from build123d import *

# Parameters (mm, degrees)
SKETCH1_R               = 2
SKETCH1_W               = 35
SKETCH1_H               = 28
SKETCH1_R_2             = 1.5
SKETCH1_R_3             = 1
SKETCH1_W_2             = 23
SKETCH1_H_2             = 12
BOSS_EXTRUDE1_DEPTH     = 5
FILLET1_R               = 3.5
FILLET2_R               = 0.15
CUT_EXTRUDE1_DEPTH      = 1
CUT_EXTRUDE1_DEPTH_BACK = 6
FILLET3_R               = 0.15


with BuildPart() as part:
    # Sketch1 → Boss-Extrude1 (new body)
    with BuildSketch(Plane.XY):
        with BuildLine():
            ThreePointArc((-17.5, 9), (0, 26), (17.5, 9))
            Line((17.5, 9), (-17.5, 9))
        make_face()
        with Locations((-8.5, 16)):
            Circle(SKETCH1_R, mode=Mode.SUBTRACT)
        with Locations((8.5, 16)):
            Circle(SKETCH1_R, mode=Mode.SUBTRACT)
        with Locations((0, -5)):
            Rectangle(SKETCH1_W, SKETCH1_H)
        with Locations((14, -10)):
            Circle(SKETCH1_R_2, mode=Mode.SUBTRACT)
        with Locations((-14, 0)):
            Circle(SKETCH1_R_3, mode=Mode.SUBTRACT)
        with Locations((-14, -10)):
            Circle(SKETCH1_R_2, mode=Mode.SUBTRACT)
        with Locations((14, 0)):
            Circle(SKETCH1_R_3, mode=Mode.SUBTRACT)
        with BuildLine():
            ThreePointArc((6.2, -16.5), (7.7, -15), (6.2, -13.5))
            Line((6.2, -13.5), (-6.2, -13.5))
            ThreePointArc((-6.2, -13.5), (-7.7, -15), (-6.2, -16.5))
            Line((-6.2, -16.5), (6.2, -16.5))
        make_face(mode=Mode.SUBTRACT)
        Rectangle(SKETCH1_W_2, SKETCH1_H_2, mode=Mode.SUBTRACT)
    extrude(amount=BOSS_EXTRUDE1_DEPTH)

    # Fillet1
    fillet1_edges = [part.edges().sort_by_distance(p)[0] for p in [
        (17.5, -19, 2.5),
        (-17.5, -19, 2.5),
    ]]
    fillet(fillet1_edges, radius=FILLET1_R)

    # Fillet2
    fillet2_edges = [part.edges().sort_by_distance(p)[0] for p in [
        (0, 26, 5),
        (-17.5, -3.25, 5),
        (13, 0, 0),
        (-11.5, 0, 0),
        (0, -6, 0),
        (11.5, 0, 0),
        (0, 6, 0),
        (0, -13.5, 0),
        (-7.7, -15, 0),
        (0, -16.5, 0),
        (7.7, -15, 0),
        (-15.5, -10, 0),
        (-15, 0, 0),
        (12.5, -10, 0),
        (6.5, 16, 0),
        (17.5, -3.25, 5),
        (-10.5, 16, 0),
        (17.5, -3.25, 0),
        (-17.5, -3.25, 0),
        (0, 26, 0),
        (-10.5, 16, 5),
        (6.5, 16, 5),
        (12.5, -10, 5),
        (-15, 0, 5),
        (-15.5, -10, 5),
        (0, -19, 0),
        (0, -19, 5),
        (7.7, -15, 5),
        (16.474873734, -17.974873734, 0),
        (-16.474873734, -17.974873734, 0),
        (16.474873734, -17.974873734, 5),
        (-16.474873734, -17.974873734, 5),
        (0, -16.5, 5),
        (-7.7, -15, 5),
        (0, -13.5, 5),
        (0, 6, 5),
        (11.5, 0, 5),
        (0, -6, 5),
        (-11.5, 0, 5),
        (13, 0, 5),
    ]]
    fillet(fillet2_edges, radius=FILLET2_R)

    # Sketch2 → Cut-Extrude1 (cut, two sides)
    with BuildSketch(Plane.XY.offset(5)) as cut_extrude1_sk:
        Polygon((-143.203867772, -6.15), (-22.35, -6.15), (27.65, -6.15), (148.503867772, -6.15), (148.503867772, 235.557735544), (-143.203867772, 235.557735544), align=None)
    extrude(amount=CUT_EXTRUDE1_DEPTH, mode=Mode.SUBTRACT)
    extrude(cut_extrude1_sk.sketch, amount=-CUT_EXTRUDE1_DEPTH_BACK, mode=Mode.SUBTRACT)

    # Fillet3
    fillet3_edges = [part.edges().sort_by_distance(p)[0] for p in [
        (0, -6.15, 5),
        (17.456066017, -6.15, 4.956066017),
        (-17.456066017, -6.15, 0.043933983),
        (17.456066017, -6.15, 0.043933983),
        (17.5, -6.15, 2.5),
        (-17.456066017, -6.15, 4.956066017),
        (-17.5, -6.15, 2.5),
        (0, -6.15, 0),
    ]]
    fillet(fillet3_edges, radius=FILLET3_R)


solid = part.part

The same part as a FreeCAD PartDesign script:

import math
import FreeCAD as App
import Part
import Sketcher
Q = App.Units.Quantity


def edges_at(feature, points):
    """Names of the edges that pass closest to the given points."""
    edges = feature.Shape.Edges
    near = lambda p: min(range(len(edges)), key=lambda i: edges[i].distToShape(Part.Vertex(*p))[0])
    return sorted({f"Edge{near(p) + 1}" for p in points})

doc = App.newDocument("Part")
body = doc.addObject("PartDesign::Body", "Body")

# Sketch on XY plane
sketch1 = body.newObject("Sketcher::SketchObject", "Sketch")
sketch1.AttachmentSupport = (doc.getObject("XY_Plane"), [""])
sketch1.MapMode = "FlatFace"
sketch1.addGeometry([
    Part.ArcOfCircle(Part.Circle(App.Vector(0, 8.5, 0), App.Vector(0, 0, 1), 17.5), math.radians(2), math.radians(178)),  # 0
    Part.LineSegment(App.Vector(-17.5, 9, 0), App.Vector(-17.5, -19, 0)),  # 1
    Part.LineSegment(App.Vector(-17.5, -19, 0), App.Vector(17.5, -19, 0)),  # 2
    Part.LineSegment(App.Vector(17.5, -19, 0), App.Vector(17.5, 9, 0)),  # 3
    Part.Circle(App.Vector(14, -10, 0), App.Vector(0, 0, 1), 1.5),  # 4
    Part.Circle(App.Vector(14, 0, 0), App.Vector(0, 0, 1), 1),  # 5
    Part.LineSegment(App.Vector(6.2, -16.5, 0), App.Vector(-6.2, -16.5, 0)),  # 6
    Part.ArcOfCircle(Part.Circle(App.Vector(-6.2, -15, 0), App.Vector(0, 0, 1), 1.5), math.radians(90), math.radians(270)),  # 7
    Part.LineSegment(App.Vector(-6.2, -13.5, 0), App.Vector(6.2, -13.5, 0)),  # 8
    Part.ArcOfCircle(Part.Circle(App.Vector(6.2, -15, 0), App.Vector(0, 0, 1), 1.5), math.radians(-90), math.radians(90)),  # 9
    Part.Circle(App.Vector(-14, -10, 0), App.Vector(0, 0, 1), 1.5),  # 10
    Part.LineSegment(App.Vector(-11.5, -6, 0), App.Vector(-11.5, 6, 0)),  # 11
    Part.LineSegment(App.Vector(-11.5, 6, 0), App.Vector(11.5, 6, 0)),  # 12
    Part.LineSegment(App.Vector(11.5, 6, 0), App.Vector(11.5, -6, 0)),  # 13
    Part.LineSegment(App.Vector(11.5, -6, 0), App.Vector(-11.5, -6, 0)),  # 14
    Part.Circle(App.Vector(-14, 0, 0), App.Vector(0, 0, 1), 1),  # 15
    Part.Circle(App.Vector(8.5, 16, 0), App.Vector(0, 0, 1), 2),  # 16
    Part.Circle(App.Vector(-8.5, 16, 0), App.Vector(0, 0, 1), 2),  # 17
], False)
sketch1.addConstraint([
    Sketcher.Constraint("Coincident", 0, 2, 1, 1),
    Sketcher.Constraint("Coincident", 1, 2, 2, 1),
    Sketcher.Constraint("Coincident", 2, 2, 3, 1),
    Sketcher.Constraint("Coincident", 3, 2, 0, 1),
    Sketcher.Constraint("Tangent", 6, 2, 7, 2),
    Sketcher.Constraint("Tangent", 7, 1, 8, 1),
    Sketcher.Constraint("Tangent", 8, 2, 9, 2),
    Sketcher.Constraint("Tangent", 9, 1, 6, 1),
    Sketcher.Constraint("Coincident", 11, 2, 12, 1),
    Sketcher.Constraint("Coincident", 12, 2, 13, 1),
    Sketcher.Constraint("Coincident", 13, 2, 14, 1),
    Sketcher.Constraint("Coincident", 14, 2, 11, 1),
    Sketcher.Constraint("Vertical", 1),
    Sketcher.Constraint("Horizontal", 2),
    Sketcher.Constraint("Vertical", 3),
    Sketcher.Constraint("Horizontal", 6),
    Sketcher.Constraint("Horizontal", 8),
    Sketcher.Constraint("Vertical", 11),
    Sketcher.Constraint("Horizontal", 12),
    Sketcher.Constraint("Vertical", 13),
    Sketcher.Constraint("Horizontal", 14),
    Sketcher.Constraint("Equal", 4, 7),
    Sketcher.Constraint("Equal", 9, 10),
    Sketcher.Constraint("Equal", 5, 15),
    Sketcher.Constraint("Equal", 16, 17),
    Sketcher.Constraint("Symmetric", 5, 3, 15, 3, -1, 1),
    Sketcher.Constraint("Symmetric", 11, 2, 13, 2, -1, 1),
    Sketcher.Constraint("Symmetric", 4, 3, 10, 3, -2),
    Sketcher.Constraint("Symmetric", 16, 3, 17, 3, -2),
    Sketcher.Constraint("Symmetric", 0, 2, 3, 2, -2),
    Sketcher.Constraint("PointOnObject", 5, 3, -1),
    Sketcher.Constraint("Vertical", 4, 3, 5, 3),
    Sketcher.Constraint("Diameter", 4, Q("3 mm")),
    Sketcher.Constraint("Diameter", 5, Q("2 mm")),
    Sketcher.Constraint("Diameter", 16, Q("4 mm")),
    Sketcher.Constraint("DistanceX", 2, 1, 2, 2, Q("35 mm")),
    Sketcher.Constraint("DistanceX", 12, 1, 12, 2, Q("23 mm")),
    Sketcher.Constraint("DistanceY", 1, 2, 1, 1, Q("28 mm")),
    Sketcher.Constraint("DistanceY", 11, 1, 11, 2, Q("12 mm")),
    Sketcher.Constraint("DistanceX", 6, 2, 6, 1, Q("12.4 mm")),
    Sketcher.Constraint("DistanceX", -1, 1, 4, 3, Q("14 mm")),
    Sketcher.Constraint("DistanceY", 4, 3, -1, 1, Q("10 mm")),
    Sketcher.Constraint("DistanceY", 7, 3, -1, 1, Q("15 mm")),
    Sketcher.Constraint("DistanceY", -1, 1, 16, 3, Q("16 mm")),
    Sketcher.Constraint("DistanceY", -1, 1, 0, 2, Q("9 mm")),
    Sketcher.Constraint("DistanceX", 17, 3, 16, 3, Q("17 mm")),
    Sketcher.Constraint("DistanceX", 7, 3, -1, 1, Q("6.2 mm")),
    Sketcher.Constraint("Radius", 0, Q("17.507353 mm")),
])
pad1 = body.newObject("PartDesign::Pad", "Pad")
pad1.Profile = sketch1
pad1.Length = 5
doc.recompute()

fillet = body.newObject("PartDesign::Fillet", "Fillet")
fillet.Base = (pad1, edges_at(pad1, [(17.5, -19, 2.5), (-17.5, -19, 2.5)]))
fillet.Radius = 3.5
doc.recompute()

fillet2 = body.newObject("PartDesign::Fillet", "Fillet001")
fillet2.Base = (fillet, edges_at(fillet, [
    (0, 26, 5),
    (-17.5, -3.25, 5),
    (13, 0, 0),
    (-11.5, 0, 0),
    (0, -6, 0),
    (11.5, 0, 0),
    (0, 6, 0),
    (0, -13.5, 0),
    (-7.7, -15, 0),
    (0, -16.5, 0),
    (7.7, -15, 0),
    (-15.5, -10, 0),
    (-15, 0, 0),
    (12.5, -10, 0),
    (6.5, 16, 0),
    (17.5, -3.25, 5),
    (-10.5, 16, 0),
    (17.5, -3.25, 0),
    (-17.5, -3.25, 0),
    (0, 26, 0),
    (-10.5, 16, 5),
    (6.5, 16, 5),
    (12.5, -10, 5),
    (-15, 0, 5),
    (-15.5, -10, 5),
    (0, -19, 0),
    (0, -19, 5),
    (7.7, -15, 5),
    (16.475, -17.975, 0),
    (-16.475, -17.975, 0),
    (16.475, -17.975, 5),
    (-16.475, -17.975, 5),
    (0, -16.5, 5),
    (-7.7, -15, 5),
    (0, -13.5, 5),
    (0, 6, 5),
    (11.5, 0, 5),
    (0, -6, 5),
    (-11.5, 0, 5),
    (13, 0, 5),
]))
fillet2.Radius = 0.15

# Sketch on XY plane
sketch2 = body.newObject("Sketcher::SketchObject", "Sketch001")
sketch2.AttachmentSupport = (doc.getObject("XY_Plane"), [""])
sketch2.MapMode = "FlatFace"
sketch2.AttachmentOffset = App.Placement(App.Vector(0, 0, 5), App.Rotation())
sketch2.addGeometry([
    Part.LineSegment(App.Vector(-143, -6, 0), App.Vector(149, -6, 0)),
    Part.LineSegment(App.Vector(149, -6, 0), App.Vector(149, 236, 0)),
    Part.LineSegment(App.Vector(149, 236, 0), App.Vector(-143, 236, 0)),
    Part.LineSegment(App.Vector(-143, 236, 0), App.Vector(-143, -6, 0)),
], False)
sketch2.addConstraint([
    Sketcher.Constraint("Coincident", 0, 2, 1, 1),
    Sketcher.Constraint("Coincident", 1, 2, 2, 1),
    Sketcher.Constraint("Coincident", 2, 2, 3, 1),
    Sketcher.Constraint("Coincident", 3, 2, 0, 1),
    Sketcher.Constraint("Horizontal", 0),
    Sketcher.Constraint("Vertical", 1),
    Sketcher.Constraint("Horizontal", 2),
    Sketcher.Constraint("Vertical", 3),
    Sketcher.Constraint("DistanceY", 0, 2, -1, 1, Q("6.15 mm")),
    Sketcher.Constraint("DistanceX", 0, 1, 0, 2, Q("291.707736 mm")),
    Sketcher.Constraint("DistanceY", 1, 1, 1, 2, Q("241.707736 mm")),
    Sketcher.Constraint("DistanceX", -1, 1, 0, 2, Q("148.503868 mm")),
])
pocket1 = body.newObject("PartDesign::Pocket", "Pocket")
pocket1.Profile = sketch2
pocket1.Type = "ThroughAll"
pocket1.Midplane = True
doc.recompute()

fillet3 = body.newObject("PartDesign::Fillet", "Fillet002")
fillet3.Base = (pocket1, edges_at(pocket1, [
    (0, -6.15, 5),
    (17.456, -6.15, 4.956),
    (-17.456, -6.15, 0.044),
    (17.456, -6.15, 0.044),
    (17.5, -6.15, 2.5),
    (-17.456, -6.15, 4.956),
    (-17.5, -6.15, 2.5),
    (0, -6.15, 0),
]))
fillet3.Radius = 0.15

doc.recompute()
